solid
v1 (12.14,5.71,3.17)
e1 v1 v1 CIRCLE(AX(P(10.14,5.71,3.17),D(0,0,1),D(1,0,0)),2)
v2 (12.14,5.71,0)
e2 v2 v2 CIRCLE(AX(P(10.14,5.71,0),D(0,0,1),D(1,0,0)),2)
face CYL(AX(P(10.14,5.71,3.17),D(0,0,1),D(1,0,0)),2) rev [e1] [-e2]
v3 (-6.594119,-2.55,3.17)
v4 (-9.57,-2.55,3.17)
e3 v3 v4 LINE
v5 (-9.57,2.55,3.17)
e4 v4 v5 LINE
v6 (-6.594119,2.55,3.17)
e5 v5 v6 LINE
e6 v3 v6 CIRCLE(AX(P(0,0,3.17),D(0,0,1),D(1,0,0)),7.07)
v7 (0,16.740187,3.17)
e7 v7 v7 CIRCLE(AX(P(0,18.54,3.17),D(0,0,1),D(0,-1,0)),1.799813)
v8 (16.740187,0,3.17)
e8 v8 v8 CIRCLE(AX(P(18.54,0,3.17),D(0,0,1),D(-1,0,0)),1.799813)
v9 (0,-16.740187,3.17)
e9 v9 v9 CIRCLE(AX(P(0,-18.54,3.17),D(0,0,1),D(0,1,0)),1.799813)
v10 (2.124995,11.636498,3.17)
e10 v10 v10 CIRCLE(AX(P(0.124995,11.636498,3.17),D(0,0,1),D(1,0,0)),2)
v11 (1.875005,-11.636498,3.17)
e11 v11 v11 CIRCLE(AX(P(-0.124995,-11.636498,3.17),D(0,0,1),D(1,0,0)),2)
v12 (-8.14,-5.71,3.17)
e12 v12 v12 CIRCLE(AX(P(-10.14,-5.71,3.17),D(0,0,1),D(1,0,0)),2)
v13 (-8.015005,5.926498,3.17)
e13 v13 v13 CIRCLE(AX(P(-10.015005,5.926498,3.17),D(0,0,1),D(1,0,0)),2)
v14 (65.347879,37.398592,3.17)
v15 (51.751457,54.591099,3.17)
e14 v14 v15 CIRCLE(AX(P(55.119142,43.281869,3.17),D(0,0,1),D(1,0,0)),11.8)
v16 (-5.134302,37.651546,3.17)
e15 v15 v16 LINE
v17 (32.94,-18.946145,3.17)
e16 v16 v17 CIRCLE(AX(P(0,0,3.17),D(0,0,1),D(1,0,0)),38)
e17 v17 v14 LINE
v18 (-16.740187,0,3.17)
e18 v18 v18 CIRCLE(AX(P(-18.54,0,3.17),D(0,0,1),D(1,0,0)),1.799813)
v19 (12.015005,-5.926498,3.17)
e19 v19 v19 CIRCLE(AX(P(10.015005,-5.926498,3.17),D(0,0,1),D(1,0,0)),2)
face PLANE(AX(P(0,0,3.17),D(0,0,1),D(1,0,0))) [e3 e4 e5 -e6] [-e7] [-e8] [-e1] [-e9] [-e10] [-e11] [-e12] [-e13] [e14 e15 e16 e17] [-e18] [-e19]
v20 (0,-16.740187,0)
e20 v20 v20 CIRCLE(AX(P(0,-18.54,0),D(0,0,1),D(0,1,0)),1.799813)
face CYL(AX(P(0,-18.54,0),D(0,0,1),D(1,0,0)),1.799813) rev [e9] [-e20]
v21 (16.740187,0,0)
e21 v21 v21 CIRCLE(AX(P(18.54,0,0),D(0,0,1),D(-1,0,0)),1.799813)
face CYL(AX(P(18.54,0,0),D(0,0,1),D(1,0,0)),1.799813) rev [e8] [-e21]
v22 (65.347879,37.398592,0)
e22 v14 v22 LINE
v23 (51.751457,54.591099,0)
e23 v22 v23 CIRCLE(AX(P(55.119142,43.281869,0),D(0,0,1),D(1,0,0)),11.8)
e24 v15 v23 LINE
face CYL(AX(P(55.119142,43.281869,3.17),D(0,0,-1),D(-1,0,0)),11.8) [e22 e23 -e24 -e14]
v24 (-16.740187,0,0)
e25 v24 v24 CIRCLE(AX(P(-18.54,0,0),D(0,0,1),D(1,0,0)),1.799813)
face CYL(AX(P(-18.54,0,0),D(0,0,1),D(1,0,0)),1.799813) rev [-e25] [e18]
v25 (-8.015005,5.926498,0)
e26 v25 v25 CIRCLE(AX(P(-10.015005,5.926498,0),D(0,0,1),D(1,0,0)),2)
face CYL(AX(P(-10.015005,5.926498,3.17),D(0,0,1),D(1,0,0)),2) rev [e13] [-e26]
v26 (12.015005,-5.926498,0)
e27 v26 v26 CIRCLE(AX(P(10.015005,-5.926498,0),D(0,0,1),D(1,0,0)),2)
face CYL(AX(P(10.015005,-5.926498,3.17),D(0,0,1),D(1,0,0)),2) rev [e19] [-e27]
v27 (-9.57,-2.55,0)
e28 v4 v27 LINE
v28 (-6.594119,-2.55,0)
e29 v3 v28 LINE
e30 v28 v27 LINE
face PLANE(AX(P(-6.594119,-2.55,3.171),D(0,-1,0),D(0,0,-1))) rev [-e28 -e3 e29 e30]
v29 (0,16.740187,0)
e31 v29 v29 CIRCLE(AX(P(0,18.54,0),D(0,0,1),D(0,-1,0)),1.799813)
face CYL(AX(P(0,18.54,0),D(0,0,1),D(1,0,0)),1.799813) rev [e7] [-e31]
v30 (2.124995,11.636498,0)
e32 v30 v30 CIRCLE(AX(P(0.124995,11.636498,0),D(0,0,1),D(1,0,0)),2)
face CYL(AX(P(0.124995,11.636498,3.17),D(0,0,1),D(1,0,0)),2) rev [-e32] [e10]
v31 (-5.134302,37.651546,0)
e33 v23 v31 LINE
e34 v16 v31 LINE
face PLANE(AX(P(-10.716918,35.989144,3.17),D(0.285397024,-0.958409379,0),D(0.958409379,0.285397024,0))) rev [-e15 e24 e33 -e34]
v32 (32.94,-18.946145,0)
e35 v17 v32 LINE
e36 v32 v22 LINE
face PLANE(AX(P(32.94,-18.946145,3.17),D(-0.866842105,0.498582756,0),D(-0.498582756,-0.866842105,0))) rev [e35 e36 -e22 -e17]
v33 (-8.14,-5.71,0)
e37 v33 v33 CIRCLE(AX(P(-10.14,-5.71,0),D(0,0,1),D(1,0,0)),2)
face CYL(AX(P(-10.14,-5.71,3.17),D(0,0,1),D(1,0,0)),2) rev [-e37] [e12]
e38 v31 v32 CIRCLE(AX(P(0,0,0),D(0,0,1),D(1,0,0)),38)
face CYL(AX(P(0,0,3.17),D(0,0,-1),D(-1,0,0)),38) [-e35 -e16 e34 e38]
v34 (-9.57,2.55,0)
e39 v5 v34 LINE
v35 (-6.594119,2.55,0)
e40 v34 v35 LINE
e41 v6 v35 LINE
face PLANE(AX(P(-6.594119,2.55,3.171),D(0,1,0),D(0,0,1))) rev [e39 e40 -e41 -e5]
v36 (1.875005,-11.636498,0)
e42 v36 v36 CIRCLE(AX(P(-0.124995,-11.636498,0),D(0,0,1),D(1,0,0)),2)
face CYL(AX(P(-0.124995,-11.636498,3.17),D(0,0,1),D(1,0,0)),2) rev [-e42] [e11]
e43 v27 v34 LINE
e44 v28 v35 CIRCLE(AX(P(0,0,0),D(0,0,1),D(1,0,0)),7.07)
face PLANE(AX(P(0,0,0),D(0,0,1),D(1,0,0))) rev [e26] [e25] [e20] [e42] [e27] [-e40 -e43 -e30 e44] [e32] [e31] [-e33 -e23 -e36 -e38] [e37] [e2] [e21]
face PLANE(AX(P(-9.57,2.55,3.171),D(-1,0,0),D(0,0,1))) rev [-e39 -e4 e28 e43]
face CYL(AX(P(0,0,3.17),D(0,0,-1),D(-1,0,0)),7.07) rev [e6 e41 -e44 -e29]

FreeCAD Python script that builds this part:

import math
import FreeCAD as App
import Part
import Sketcher
Q = App.Units.Quantity

doc = App.newDocument("Part")
params = doc.addObject("Spreadsheet::Sheet", "Params")
for row, (alias, value) in enumerate([
    ("sketch1_radius", "38 mm"),
    ("sketch1_radius2", "11.8 mm"),
    ("sketch1_diameter", "14.14 mm"),
    ("sketch1_length", "65 mm"),
    ("pad1_length", "3.17 mm"),
    ("pocket1_length", "3.17 mm"),
    ("sketch3_diameter", "4 mm"),
    ("hole_diameter", "4 mm"),
    ("sketch4_radius", "7.07 mm"),
    ("sketch4_height", "5.1 mm"),
], start=1):
    params.set(f"A{row}", alias)
    params.set(f"B{row}", "=" + value)
    params.setAlias(f"B{row}", alias)

body = doc.addObject("PartDesign::Body", "Body")

sketch1 = body.newObject("Sketcher::SketchObject", "Sketch")
sketch1.AttachmentSupport = (doc.getObject("XY_Plane"), [""])
sketch1.MapMode = "FlatFace"
sketch1.addGeometry([
    Part.ArcOfCircle(Part.Circle(App.Vector(0, 0, 0), App.Vector(0, 0, 1), 38), math.radians(97.765166), math.radians(330.09372)),
    Part.LineSegment(App.Vector(32.94, -18.946145, 0), App.Vector(65.347879, 37.398592, 0)),
    Part.ArcOfCircle(Part.Circle(App.Vector(55.119142, 43.281869, 0), App.Vector(0, 0, 1), 11.8), math.radians(-29.90628), math.radians(106.582582)),
    Part.LineSegment(App.Vector(51.751457, 54.591099, 0), App.Vector(-5.134302, 37.651546, 0)),
    Part.Circle(App.Vector(0, 0, 0), App.Vector(0, 0, 1), 7.07),
], False)
sketch1.addConstraint([
    Sketcher.Constraint("Coincident", 0, 2, 1, 1),
    Sketcher.Constraint("Coincident", 1, 2, 2, 1),
    Sketcher.Constraint("Coincident", 2, 2, 3, 1),
    Sketcher.Constraint("Coincident", 3, 2, 0, 1),
    Sketcher.Constraint("Coincident", 0, 3, -1, 1),
    Sketcher.Constraint("Coincident", 4, 3, -1, 1),
    Sketcher.Constraint("Radius", 0, Q("38 mm")),
    Sketcher.Constraint("Radius", 2, Q("11.8 mm")),
    Sketcher.Constraint("Diameter", 4, Q("14.14 mm")),
    Sketcher.Constraint("Distance", 1, Q("65 mm")),
    Sketcher.Constraint("DistanceX", -1, 1, 0, 2, Q("32.94 mm")),
    Sketcher.Constraint("DistanceY", -1, 1, 2, 2, Q("54.591099 mm")),
    Sketcher.Constraint("DistanceX", 3, 2, -1, 1, Q("5.134302 mm")),
    Sketcher.Constraint("DistanceY", -1, 1, 2, 3, Q("43.281869 mm")),
    Sketcher.Constraint("DistanceX", -1, 1, 1, 2, Q("65.347879 mm")),
])
sketch1.setExpression("Constraints[6]", "Params.sketch1_radius")
sketch1.setExpression("Constraints[7]", "Params.sketch1_radius2")
sketch1.setExpression("Constraints[8]", "Params.sketch1_diameter")
sketch1.setExpression("Constraints[9]", "Params.sketch1_length")
pad1 = body.newObject("PartDesign::Pad", "Pad")
pad1.Profile = sketch1
pad1.setExpression("Length", "Params.pad1_length")

sketch2 = body.newObject("Sketcher::SketchObject", "Sketch001")
sketch2.AttachmentSupport = (doc.getObject("XY_Plane"), [""])
sketch2.MapMode = "FlatFace"
sketch2.AttachmentOffset = App.Placement(App.Vector(0, 0, 3.17), App.Rotation())
sketch2.addGeometry(Part.Circle(App.Vector(-18.54, 0, 0), App.Vector(0, 0, 1), 1.799813), False)
sketch2.addConstraint([
    Sketcher.Constraint("PointOnObject", 0, 3, -1),
    Sketcher.Constraint("DistanceX", 0, 3, -1, 1, Q("18.54 mm")),
    Sketcher.Constraint("Diameter", 0, Q("3.599627 mm")),
])
pocket1 = body.newObject("PartDesign::Pocket", "Pocket")
pocket1.Profile = sketch2
pocket1.setExpression("Length", "Params.pocket1_length")
doc.recompute()

polarpattern = body.newObject("PartDesign::PolarPattern", "PolarPattern")
polarpattern.Originals = [pocket1]
polarpattern.Axis = (doc.getObject("Z_Axis"), [""])
polarpattern.Angle = 360
polarpattern.Occurrences = 4
body.Tip = polarpattern

sketch3 = body.newObject("Sketcher::SketchObject", "Sketch002")
sketch3.AttachmentSupport = (doc.getObject("XY_Plane"), [""])
sketch3.MapMode = "FlatFace"
sketch3.AttachmentOffset = App.Placement(App.Vector(0, 0, 3.17), App.Rotation())
sketch3.addGeometry(Part.Circle(App.Vector(-10.14, -5.71, 0), App.Vector(0, 0, 1), 2), False)
sketch3.addConstraint([
    Sketcher.Constraint("Diameter", 0, Q("4 mm")),
    Sketcher.Constraint("DistanceX", 0, 3, -1, 1, Q("10.14 mm")),
    Sketcher.Constraint("DistanceY", 0, 3, -1, 1, Q("5.71 mm")),
])
sketch3.setExpression("Constraints[0]", "Params.sketch3_diameter")
doc.recompute()
hole = body.newObject("PartDesign::Hole", "Hole")
hole.Profile = sketch3
hole.ThreadType = "None"
hole.setExpression("Diameter", "Params.hole_diameter")
hole.DepthType = "ThroughAll"
doc.recompute()

polarpattern2 = body.newObject("PartDesign::PolarPattern", "PolarPattern001")
polarpattern2.Originals = [hole]
polarpattern2.Axis = (doc.getObject("Z_Axis"), [""])
polarpattern2.Angle = 360
polarpattern2.Occurrences = 6
body.Tip = polarpattern2

sketch4 = body.newObject("Sketcher::SketchObject", "Sketch003")
sketch4.AttachmentSupport = (doc.getObject("XY_Plane"), [""])
sketch4.MapMode = "FlatFace"
sketch4.addGeometry([
    Part.LineSegment(App.Vector(-9.57, 2.55, 0), App.Vector(-6.594119, 2.55, 0)),
    Part.ArcOfCircle(Part.Circle(App.Vector(0, 0, 0), App.Vector(0, 0, 1), 7.07), math.radians(158.858103), math.radians(201.141897)),
    Part.LineSegment(App.Vector(-6.594119, -2.55, 0), App.Vector(-9.57, -2.55, 0)),
    Part.LineSegment(App.Vector(-9.57, -2.55, 0), App.Vector(-9.57, 2.55, 0)),
], False)
sketch4.addConstraint([
    Sketcher.Constraint("Coincident", 0, 2, 1, 1),
    Sketcher.Constraint("Coincident", 1, 2, 2, 1),
    Sketcher.Constraint("Coincident", 2, 2, 3, 1),
    Sketcher.Constraint("Coincident", 3, 2, 0, 1),
    Sketcher.Constraint("Horizontal", 0),
    Sketcher.Constraint("Horizontal", 2),
    Sketcher.Constraint("Vertical", 3),
    Sketcher.Constraint("Coincident", 1, 3, -1, 1),
    Sketcher.Constraint("Vertical", 0, 2, 1, 2),
    Sketcher.Constraint("Radius", 1, Q("7.07 mm")),
    Sketcher.Constraint("DistanceY", 3, 1, 3, 2, Q("5.1 mm")),
    Sketcher.Constraint("DistanceX", 2, 2, -1, 1, Q("9.57 mm")),
])
sketch4.setExpression("Constraints[9]", "Params.sketch4_radius")
sketch4.setExpression("Constraints[10]", "Params.sketch4_height")
pocket2 = body.newObject("PartDesign::Pocket", "Pocket001")
pocket2.Profile = sketch4
pocket2.Type = "UpToFirst"
pocket2.Reversed = True

doc.recompute()
